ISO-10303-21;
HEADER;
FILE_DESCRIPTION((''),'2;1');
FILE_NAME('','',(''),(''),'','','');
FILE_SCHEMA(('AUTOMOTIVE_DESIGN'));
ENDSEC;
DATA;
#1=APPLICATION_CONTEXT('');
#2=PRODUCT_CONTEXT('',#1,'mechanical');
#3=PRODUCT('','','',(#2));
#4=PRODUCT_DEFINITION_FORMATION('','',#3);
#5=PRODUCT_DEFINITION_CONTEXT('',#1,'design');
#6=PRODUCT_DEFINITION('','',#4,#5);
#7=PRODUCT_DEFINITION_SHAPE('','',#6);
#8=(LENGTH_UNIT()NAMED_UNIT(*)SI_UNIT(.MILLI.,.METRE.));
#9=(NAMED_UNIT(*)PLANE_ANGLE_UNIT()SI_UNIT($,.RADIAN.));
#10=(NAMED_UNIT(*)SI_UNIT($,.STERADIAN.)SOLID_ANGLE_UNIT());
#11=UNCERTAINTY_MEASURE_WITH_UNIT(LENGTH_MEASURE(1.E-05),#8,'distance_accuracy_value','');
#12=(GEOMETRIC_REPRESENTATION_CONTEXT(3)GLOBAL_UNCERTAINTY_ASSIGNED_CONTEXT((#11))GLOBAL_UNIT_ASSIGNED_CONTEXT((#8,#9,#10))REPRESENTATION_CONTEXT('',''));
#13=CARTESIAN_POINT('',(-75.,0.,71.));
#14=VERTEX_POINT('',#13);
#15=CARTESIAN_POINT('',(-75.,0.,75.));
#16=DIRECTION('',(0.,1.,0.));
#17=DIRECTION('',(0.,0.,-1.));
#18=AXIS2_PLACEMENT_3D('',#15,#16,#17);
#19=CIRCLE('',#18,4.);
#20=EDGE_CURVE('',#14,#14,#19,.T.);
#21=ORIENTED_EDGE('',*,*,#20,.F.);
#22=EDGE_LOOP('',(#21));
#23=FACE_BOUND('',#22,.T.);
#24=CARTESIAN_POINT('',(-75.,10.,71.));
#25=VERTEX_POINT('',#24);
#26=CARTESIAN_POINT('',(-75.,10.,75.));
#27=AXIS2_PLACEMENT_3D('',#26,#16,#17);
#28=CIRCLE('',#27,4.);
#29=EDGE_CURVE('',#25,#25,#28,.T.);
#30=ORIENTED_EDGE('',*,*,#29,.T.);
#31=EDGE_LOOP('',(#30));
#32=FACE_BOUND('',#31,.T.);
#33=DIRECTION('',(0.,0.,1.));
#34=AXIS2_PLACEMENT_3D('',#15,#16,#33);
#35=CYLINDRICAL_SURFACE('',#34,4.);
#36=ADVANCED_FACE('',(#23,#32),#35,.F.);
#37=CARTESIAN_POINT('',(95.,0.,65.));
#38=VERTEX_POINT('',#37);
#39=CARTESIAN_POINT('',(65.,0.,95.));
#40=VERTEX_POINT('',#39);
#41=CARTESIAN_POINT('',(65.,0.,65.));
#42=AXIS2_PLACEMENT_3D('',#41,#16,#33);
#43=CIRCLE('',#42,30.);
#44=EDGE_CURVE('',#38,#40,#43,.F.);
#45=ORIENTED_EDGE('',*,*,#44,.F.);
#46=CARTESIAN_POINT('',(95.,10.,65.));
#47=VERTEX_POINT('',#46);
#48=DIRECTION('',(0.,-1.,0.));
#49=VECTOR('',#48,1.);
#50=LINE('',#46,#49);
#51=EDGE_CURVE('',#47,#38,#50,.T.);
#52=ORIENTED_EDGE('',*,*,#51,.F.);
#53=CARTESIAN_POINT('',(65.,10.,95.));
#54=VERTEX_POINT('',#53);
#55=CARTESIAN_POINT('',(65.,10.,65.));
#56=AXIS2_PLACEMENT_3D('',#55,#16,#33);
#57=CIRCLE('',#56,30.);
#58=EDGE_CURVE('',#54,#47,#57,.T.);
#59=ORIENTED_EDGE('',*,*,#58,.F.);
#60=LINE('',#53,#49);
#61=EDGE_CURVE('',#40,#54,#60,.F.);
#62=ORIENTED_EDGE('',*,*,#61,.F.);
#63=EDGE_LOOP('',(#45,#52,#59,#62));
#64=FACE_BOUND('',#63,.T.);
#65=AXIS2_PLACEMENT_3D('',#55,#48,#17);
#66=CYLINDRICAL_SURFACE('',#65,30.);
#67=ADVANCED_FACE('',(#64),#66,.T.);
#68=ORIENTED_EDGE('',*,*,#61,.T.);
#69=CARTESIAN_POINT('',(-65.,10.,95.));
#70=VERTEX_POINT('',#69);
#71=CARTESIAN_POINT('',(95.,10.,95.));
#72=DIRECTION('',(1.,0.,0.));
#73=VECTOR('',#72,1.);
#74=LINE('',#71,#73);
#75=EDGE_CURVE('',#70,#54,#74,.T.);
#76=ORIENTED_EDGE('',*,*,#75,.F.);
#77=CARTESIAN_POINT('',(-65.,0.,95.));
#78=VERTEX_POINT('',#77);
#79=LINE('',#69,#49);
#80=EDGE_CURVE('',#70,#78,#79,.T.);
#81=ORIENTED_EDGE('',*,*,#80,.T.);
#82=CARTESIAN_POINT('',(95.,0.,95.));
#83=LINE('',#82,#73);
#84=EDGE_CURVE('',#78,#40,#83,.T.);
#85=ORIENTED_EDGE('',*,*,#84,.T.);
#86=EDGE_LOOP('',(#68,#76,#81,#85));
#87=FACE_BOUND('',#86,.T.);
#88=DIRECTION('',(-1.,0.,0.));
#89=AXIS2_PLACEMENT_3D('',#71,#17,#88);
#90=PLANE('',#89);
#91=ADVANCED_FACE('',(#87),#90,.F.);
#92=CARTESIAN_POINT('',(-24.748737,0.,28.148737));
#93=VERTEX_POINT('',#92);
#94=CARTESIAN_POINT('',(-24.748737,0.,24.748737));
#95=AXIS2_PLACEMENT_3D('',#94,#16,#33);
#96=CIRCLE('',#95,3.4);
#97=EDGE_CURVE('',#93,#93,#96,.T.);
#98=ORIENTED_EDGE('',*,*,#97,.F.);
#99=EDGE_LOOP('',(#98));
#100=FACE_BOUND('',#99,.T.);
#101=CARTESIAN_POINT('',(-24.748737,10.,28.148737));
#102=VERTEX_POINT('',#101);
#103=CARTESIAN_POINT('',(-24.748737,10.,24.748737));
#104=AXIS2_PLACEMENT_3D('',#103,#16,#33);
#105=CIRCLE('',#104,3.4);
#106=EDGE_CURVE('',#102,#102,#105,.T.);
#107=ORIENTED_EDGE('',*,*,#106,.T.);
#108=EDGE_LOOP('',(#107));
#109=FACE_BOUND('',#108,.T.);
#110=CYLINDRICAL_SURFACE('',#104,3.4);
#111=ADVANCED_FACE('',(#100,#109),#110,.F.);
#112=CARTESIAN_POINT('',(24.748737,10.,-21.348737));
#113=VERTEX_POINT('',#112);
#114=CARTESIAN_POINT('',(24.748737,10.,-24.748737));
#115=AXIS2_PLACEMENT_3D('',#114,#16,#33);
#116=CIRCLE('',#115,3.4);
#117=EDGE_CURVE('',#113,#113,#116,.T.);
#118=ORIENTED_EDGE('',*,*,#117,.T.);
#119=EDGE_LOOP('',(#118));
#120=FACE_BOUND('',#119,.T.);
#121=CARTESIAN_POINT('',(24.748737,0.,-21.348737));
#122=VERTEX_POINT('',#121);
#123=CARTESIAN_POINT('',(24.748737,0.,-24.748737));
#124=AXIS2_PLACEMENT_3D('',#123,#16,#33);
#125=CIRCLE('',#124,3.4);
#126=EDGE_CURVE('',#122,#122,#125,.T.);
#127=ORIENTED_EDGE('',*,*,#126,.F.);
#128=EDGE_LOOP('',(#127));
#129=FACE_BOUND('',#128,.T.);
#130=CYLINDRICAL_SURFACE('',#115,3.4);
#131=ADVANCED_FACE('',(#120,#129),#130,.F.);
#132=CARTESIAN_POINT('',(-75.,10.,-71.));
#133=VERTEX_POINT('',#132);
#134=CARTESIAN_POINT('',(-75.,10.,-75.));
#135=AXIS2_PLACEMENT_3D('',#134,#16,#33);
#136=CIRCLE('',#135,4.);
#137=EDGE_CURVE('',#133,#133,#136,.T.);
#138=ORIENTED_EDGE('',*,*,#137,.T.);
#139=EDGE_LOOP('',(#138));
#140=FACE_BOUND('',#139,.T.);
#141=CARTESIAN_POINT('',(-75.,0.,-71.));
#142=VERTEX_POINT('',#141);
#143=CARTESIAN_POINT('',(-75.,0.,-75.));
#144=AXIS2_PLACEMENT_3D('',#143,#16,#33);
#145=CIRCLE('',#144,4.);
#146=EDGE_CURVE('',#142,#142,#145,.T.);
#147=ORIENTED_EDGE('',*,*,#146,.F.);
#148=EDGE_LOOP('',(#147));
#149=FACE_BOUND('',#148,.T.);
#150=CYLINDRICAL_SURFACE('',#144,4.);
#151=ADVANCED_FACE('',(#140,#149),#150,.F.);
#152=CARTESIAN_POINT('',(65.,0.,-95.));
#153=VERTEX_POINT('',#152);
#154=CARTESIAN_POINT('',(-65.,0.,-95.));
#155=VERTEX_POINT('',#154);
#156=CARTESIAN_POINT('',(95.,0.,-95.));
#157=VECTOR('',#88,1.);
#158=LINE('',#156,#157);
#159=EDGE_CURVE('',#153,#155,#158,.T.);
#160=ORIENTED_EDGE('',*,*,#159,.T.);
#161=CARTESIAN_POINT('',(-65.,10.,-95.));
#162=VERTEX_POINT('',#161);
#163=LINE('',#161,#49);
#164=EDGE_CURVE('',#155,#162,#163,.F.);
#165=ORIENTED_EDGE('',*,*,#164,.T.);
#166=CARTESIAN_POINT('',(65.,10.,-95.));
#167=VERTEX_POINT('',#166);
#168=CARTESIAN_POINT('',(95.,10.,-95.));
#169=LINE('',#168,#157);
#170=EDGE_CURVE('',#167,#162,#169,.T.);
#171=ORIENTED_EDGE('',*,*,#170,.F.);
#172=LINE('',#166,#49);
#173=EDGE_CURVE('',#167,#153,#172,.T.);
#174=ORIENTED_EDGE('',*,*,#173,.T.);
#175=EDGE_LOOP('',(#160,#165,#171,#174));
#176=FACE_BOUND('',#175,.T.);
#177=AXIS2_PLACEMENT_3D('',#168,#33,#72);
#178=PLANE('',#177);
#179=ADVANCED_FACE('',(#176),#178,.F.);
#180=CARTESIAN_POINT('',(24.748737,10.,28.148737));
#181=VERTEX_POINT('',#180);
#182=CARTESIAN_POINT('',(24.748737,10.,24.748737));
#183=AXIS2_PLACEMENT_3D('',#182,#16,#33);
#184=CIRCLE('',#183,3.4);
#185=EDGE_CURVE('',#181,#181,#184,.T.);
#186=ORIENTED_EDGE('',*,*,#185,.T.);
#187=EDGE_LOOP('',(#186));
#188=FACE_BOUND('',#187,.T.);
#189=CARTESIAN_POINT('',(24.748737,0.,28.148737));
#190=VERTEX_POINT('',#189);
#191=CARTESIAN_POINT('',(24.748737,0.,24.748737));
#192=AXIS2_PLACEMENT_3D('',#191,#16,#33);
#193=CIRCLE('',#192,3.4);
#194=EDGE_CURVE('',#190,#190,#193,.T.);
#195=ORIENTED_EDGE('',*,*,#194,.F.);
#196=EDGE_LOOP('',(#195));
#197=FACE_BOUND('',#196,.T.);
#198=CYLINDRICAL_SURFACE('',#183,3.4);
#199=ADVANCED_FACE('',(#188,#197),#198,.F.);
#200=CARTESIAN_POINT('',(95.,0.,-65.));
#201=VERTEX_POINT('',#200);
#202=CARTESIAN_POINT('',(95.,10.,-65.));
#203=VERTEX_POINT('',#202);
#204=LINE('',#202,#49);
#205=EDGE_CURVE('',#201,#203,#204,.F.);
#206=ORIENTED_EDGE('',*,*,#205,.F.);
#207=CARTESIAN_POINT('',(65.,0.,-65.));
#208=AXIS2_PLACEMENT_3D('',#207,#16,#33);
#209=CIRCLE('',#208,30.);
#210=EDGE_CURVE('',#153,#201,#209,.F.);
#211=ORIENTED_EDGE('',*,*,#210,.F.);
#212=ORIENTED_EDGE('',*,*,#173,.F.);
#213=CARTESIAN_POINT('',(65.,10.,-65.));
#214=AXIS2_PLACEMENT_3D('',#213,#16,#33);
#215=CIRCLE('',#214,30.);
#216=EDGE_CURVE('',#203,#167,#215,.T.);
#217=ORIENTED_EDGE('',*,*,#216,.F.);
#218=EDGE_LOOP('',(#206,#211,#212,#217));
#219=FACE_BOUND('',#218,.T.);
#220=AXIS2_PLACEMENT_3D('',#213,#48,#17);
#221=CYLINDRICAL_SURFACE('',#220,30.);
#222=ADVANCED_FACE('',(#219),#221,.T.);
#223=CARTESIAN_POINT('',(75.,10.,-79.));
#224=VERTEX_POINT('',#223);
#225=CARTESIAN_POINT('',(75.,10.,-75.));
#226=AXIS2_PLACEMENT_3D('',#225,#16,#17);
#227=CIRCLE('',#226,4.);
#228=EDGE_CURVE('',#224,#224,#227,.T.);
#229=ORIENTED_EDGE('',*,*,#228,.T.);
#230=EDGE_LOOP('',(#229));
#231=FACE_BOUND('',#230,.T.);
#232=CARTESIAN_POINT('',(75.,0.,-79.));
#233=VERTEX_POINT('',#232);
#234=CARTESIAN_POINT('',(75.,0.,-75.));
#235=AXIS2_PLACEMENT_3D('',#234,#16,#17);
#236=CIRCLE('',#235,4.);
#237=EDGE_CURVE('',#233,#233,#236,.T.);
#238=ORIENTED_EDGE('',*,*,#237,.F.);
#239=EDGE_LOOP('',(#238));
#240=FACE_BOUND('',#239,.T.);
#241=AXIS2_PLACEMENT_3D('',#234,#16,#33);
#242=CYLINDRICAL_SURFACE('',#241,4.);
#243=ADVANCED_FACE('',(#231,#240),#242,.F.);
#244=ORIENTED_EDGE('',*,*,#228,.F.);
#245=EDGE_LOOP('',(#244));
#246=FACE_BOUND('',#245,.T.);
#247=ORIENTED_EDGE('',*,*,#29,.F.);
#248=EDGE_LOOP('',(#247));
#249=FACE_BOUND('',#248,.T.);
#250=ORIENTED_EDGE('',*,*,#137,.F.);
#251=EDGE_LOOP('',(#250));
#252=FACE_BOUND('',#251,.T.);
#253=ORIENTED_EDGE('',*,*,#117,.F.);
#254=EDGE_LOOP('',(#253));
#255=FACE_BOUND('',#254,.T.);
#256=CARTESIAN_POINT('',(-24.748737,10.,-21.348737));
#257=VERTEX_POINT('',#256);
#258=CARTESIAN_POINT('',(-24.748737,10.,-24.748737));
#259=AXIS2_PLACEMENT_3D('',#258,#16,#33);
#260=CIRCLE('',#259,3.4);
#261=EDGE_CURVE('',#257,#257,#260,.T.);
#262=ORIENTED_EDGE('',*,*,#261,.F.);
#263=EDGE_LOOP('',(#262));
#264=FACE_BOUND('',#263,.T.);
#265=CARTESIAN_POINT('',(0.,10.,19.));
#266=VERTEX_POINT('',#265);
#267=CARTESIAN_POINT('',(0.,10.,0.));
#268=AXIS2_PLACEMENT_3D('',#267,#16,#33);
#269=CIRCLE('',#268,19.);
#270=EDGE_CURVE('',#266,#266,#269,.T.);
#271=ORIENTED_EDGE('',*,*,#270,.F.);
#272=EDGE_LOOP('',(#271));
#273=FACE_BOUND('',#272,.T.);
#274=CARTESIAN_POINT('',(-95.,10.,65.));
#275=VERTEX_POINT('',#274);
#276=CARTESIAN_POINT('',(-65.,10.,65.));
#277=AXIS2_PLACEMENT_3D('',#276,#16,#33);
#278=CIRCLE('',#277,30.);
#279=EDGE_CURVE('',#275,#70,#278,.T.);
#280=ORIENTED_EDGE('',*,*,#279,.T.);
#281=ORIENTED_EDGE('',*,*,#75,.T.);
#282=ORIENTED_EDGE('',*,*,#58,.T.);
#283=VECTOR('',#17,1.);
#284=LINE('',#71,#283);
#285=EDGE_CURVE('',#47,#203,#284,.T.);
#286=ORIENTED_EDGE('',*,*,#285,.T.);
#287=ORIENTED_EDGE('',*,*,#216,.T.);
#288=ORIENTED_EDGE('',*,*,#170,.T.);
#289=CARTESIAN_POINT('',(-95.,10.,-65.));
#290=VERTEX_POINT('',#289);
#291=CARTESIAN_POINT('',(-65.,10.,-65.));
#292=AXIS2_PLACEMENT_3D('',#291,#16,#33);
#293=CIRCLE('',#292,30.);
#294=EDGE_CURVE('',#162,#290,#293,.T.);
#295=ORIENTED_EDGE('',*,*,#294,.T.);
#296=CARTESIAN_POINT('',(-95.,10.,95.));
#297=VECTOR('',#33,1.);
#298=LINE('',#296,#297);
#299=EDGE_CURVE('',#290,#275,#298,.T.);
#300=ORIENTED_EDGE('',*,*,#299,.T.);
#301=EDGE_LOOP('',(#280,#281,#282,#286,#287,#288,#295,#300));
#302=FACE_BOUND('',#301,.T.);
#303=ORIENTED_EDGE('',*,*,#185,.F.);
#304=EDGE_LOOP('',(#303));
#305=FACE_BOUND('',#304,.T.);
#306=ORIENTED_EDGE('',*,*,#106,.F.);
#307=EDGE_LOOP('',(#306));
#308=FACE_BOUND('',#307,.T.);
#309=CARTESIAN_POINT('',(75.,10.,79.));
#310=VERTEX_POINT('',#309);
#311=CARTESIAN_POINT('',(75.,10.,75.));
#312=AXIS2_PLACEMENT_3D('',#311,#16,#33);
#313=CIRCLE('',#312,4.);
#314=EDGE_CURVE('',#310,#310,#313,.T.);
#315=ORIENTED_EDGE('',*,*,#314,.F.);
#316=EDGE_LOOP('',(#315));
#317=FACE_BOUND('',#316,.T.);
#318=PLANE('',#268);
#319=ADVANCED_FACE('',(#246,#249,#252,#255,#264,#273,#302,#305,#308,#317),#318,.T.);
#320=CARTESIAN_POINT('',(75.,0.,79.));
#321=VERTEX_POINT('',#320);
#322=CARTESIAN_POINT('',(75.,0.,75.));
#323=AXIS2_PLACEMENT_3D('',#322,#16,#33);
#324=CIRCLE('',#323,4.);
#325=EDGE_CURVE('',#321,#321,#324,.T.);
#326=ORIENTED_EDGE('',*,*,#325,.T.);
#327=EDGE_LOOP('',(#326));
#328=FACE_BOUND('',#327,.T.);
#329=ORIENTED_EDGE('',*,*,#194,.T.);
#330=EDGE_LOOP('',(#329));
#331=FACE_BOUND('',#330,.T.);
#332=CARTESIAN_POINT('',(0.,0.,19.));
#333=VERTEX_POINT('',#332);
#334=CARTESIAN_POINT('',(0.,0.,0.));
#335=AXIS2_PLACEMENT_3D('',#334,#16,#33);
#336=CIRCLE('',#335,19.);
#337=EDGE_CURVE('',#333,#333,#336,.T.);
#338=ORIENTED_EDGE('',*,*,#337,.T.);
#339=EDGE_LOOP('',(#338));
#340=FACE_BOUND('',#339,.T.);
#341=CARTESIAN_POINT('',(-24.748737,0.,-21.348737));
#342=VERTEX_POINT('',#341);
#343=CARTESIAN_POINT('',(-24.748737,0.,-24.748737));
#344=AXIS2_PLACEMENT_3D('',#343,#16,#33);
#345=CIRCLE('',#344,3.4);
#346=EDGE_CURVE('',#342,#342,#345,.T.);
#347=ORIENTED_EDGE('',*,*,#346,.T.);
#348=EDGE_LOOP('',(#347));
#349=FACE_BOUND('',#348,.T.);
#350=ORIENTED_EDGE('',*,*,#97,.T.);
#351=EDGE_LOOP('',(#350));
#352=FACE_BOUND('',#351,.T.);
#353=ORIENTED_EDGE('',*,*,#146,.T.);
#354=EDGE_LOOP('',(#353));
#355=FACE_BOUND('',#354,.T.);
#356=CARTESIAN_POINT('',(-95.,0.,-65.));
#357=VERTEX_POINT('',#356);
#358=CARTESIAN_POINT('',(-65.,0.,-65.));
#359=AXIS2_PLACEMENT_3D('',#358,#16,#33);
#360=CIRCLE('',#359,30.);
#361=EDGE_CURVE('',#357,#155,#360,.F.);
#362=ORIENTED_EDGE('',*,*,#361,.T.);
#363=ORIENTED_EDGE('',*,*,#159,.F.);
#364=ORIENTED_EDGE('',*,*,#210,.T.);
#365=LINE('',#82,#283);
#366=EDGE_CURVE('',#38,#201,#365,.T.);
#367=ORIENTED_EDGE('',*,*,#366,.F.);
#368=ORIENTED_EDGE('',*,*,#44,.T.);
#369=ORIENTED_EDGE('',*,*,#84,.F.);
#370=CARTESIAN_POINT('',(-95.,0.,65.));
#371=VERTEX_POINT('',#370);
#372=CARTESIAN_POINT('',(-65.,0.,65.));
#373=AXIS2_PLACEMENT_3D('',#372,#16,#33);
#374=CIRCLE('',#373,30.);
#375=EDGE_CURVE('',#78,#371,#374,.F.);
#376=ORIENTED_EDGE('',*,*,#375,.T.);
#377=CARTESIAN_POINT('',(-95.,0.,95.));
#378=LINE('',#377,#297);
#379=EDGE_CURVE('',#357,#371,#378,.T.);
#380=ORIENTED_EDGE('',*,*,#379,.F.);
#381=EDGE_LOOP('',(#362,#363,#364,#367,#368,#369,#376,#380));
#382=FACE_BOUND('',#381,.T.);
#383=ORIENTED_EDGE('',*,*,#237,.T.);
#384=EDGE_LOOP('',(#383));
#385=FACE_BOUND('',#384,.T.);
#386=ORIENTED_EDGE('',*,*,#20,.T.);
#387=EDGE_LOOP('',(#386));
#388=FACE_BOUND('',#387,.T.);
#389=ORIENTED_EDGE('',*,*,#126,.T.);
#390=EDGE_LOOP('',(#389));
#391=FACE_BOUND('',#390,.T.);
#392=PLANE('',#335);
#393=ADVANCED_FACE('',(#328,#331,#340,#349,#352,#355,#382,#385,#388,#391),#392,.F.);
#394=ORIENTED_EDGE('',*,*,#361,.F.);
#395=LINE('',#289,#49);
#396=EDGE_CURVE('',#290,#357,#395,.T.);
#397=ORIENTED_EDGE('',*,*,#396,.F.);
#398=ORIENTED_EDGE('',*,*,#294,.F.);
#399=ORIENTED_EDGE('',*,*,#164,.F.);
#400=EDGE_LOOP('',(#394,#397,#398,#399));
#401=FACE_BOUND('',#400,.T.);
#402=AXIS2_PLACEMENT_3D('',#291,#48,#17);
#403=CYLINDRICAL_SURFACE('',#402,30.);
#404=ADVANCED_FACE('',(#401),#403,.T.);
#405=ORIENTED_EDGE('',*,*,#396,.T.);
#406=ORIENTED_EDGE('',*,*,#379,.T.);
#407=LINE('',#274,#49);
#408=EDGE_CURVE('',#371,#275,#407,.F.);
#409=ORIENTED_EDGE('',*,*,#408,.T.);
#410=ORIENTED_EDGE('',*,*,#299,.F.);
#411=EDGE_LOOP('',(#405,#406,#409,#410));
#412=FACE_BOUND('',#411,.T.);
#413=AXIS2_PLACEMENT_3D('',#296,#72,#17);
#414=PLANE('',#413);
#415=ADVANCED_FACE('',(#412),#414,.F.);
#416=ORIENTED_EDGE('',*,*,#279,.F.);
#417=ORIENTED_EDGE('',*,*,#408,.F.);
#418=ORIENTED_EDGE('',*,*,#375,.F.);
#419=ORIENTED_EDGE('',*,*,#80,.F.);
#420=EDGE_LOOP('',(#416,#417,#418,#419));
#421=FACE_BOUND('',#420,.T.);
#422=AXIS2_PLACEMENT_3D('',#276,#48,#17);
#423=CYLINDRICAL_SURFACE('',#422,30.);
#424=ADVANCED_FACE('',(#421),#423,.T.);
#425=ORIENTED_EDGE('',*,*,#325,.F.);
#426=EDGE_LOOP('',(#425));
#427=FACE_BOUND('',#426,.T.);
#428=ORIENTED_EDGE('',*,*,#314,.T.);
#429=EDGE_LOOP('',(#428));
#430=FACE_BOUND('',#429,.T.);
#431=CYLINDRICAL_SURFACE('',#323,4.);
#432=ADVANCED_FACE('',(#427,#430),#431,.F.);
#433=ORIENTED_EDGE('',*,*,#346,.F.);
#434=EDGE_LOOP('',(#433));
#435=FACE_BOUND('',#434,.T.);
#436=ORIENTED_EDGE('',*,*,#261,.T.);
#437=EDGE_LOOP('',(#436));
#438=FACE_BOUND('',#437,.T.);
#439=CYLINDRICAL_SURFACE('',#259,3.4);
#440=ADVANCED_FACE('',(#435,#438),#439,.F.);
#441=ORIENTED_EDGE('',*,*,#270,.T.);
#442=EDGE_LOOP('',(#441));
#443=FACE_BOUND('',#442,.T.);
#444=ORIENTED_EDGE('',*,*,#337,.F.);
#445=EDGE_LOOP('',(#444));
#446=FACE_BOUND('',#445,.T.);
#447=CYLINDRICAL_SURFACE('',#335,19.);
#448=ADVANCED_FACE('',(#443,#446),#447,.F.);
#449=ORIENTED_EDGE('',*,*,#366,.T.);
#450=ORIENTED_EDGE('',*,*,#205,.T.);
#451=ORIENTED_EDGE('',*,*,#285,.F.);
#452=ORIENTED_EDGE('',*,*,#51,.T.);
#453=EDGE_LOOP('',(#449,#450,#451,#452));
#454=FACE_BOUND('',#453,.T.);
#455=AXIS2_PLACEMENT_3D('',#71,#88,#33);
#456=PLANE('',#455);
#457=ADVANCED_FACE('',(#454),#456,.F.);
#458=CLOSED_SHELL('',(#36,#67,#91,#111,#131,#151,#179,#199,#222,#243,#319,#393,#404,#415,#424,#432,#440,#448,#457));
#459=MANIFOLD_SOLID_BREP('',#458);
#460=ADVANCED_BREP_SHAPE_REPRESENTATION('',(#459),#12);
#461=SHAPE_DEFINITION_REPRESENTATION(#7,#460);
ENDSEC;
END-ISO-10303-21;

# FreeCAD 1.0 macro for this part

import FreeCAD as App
import Part
import Sketcher

V = App.Vector


def edges_at(feature, points):
    """Names of the edges that pass closest to the given points."""
    edges = feature.Shape.Edges
    near = lambda p: min(range(len(edges)), key=lambda i: edges[i].distToShape(Part.Vertex(*p))[0])
    return sorted({f"Edge{near(p) + 1}" for p in points})


def add_polygon(sketch, points):
    """Adds a closed chain of lines whose ends are joined by coincident constraints."""
    first, n = sketch.GeometryCount, len(points)
    for a, b in zip(points, points[1:] + points[:1]):
        sketch.addGeometry(Part.LineSegment(App.Vector(*a, 0), App.Vector(*b, 0)), False)
    for i in range(n):
        sketch.addConstraint(Sketcher.Constraint("Coincident", first + i, 2, first + (i + 1) % n, 1))

doc = App.newDocument("Part")
body = doc.addObject("PartDesign::Body", "Body")

# Sketch on XZ plane
sketch1 = body.newObject("Sketcher::SketchObject", "Sketch")
sketch1.AttachmentSupport = (doc.getObject("XZ_Plane"), [""])
sketch1.MapMode = "FlatFace"
add_polygon(sketch1, [(-95, -95), (-95, 95), (95, 95), (95, -95)])  # lines 0-3
sketch1.addConstraint([
    Sketcher.Constraint("Vertical", 0),
    Sketcher.Constraint("Horizontal", 1),
    Sketcher.Constraint("Vertical", 2),
    Sketcher.Constraint("Horizontal", 3),
    Sketcher.Constraint("Symmetric", 0, 2, 2, 2, -1, 1),
    Sketcher.Constraint("Equal", 3, 0),
    Sketcher.Constraint("DistanceX", 1, 1, 1, 2, 190.0),
])
pad1 = body.newObject("PartDesign::Pad", "Pad")
pad1.Profile = sketch1
pad1.Length = 10
pad1.Reversed = True

# Sketch on XZ plane
sketch2 = body.newObject("Sketcher::SketchObject", "Sketch001")
sketch2.AttachmentSupport = (doc.getObject("XZ_Plane"), [""])
sketch2.MapMode = "FlatFace"
sketch2.AttachmentOffset = App.Placement(V(0, 0, -10), App.Rotation())
sketch2.addGeometry([
    Part.Circle(V(0, 0, 0), V(0, 0, 1), 19),  # 0
    Part.Circle(V(-75, -75, 0), V(0, 0, 1), 4),  # 1
    Part.Circle(V(75, -75, 0), V(0, 0, 1), 4),  # 2
    Part.Circle(V(75, 75, 0), V(0, 0, 1), 4),  # 3
    Part.Circle(V(-75, 75, 0), V(0, 0, 1), 4),  # 4
], False)
sketch2.addConstraint([
    Sketcher.Constraint("Coincident", 0, 3, -1, 1),
    Sketcher.Constraint("Equal", 1, 2),
    Sketcher.Constraint("Equal", 2, 3),
    Sketcher.Constraint("Equal", 3, 4),
    Sketcher.Constraint("Symmetric", 1, 3, 3, 3, -1, 1),
    Sketcher.Constraint("Symmetric", 2, 3, 4, 3, -1, 1),
    Sketcher.Constraint("Symmetric", 1, 3, 2, 3, -2),
    Sketcher.Constraint("Diameter", 0, 38.0),
    Sketcher.Constraint("Diameter", 1, 8.0),
    Sketcher.Constraint("DistanceX", 1, 3, -1, 1, 75.0),
    Sketcher.Constraint("DistanceY", 1, 3, -1, 1, 75.0),
])
pocket1 = body.newObject("PartDesign::Pocket", "Pocket")
pocket1.Profile = sketch2
pocket1.Length = 10
pocket1.Reversed = True
doc.recompute()

fillet = body.newObject("PartDesign::Fillet", "Fillet")
fillet.Base = (pocket1, edges_at(pocket1, [
    (-95, 5, -95),
    (95, 5, -95),
    (95, 5, 95),
    (-95, 5, 95),
]))
fillet.Radius = 30

# Sketch on XZ plane
sketch3 = body.newObject("Sketcher::SketchObject", "Sketch002")
sketch3.AttachmentSupport = (doc.getObject("XZ_Plane"), [""])
sketch3.MapMode = "FlatFace"
sketch3.AttachmentOffset = App.Placement(V(0, 0, -10), App.Rotation())
sketch3.addGeometry([
    Part.Circle(V(-24.7, -24.7, 0), V(0, 0, 1), 3.4),
    Part.Circle(V(24.7, -24.7, 0), V(0, 0, 1), 3.4),
    Part.Circle(V(-24.7, 24.7, 0), V(0, 0, 1), 3.4),
    Part.Circle(V(24.7, 24.7, 0), V(0, 0, 1), 3.4),
], False)
sketch3.addConstraint([
    Sketcher.Constraint("Equal", 0, 1),
    Sketcher.Constraint("Equal", 1, 2),
    Sketcher.Constraint("Equal", 2, 3),
    Sketcher.Constraint("Symmetric", 1, 3, 2, 3, -1, 1),
    Sketcher.Constraint("Symmetric", 0, 3, 3, 3, -1, 1),
    Sketcher.Constraint("Symmetric", 0, 3, 1, 3, -2),
    Sketcher.Constraint("Diameter", 0, 6.8),
    Sketcher.Constraint("DistanceX", 0, 3, -1, 1, 24.748737),
    Sketcher.Constraint("DistanceY", 0, 3, -1, 1, 24.748737),
])
doc.recompute()
hole = body.newObject("PartDesign::Hole", "Hole")
hole.Profile = sketch3
hole.ThreadType = "None"
hole.Diameter = 6.8
hole.DepthType = "Dimension"
hole.Depth = 19.75
hole.DrillPoint = "Angled"
hole.DrillPointAngle = 118
hole.Reversed = True

doc.recompute()
